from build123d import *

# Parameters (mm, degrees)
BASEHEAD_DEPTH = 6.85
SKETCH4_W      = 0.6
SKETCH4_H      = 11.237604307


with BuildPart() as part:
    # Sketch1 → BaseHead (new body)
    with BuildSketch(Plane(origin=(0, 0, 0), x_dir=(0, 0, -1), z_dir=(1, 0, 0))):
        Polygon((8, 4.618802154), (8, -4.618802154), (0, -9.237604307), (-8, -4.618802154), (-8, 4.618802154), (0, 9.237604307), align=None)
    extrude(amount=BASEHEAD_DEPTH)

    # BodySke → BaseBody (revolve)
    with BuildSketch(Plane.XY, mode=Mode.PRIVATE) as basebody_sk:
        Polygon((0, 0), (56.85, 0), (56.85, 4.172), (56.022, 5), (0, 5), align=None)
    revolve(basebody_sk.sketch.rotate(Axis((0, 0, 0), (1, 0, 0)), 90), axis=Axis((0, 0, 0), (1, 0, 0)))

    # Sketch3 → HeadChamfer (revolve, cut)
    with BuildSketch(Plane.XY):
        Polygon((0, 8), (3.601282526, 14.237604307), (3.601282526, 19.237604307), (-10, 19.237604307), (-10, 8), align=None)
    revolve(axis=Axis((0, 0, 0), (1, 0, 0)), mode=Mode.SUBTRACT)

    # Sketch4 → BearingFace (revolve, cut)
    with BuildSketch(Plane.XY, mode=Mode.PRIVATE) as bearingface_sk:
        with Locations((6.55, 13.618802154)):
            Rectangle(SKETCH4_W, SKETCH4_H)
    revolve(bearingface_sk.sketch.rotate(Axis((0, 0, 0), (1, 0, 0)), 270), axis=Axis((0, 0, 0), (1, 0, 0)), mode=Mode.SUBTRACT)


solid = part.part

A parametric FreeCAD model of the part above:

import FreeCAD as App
import Part
import Sketcher
from FreeCAD import Vector
Q = App.Units.Quantity


def add_polygon(sketch, points):
    """Adds a closed chain of lines whose ends are joined by coincident constraints."""
    first, n = sketch.GeometryCount, len(points)
    for a, b in zip(points, points[1:] + points[:1]):
        sketch.addGeometry(Part.LineSegment(App.Vector(*a, 0), App.Vector(*b, 0)), False)
    for i in range(n):
        sketch.addConstraint(Sketcher.Constraint("Coincident", first + i, 2, first + (i + 1) % n, 1))

doc = App.newDocument("Part")
params = doc.addObject("Spreadsheet::Sheet", "Params")
for row, (alias, value) in enumerate([
    ("pad1_length", "6.85 mm"),
    ("sketch2_height", "5 mm"),
    ("sketch2_width", "56.85 mm"),
    ("revolution_angle", "360 deg"),
    ("sketch3_width", "10 mm"),
    ("sketch3_height", "5 mm"),
    ("groove_angle", "360 deg"),
    ("sketch4_width", "0.6 mm"),
    ("groove2_angle", "360 deg"),
], start=1):
    params.set(f"A{row}", alias)
    params.set(f"B{row}", "=" + value)
    params.setAlias(f"B{row}", alias)

body = doc.addObject("PartDesign::Body", "Body")

# Sketch on YZ plane
sketch1 = body.newObject("Sketcher::SketchObject", "Sketch")
sketch1.AttachmentSupport = (doc.getObject("YZ_Plane"), [""])
sketch1.MapMode = "FlatFace"
add_polygon(sketch1, [(-5, -8), (5, -8), (9, 0), (5, 8), (-5, 8), (-9, 0)])  # lines 0-5
sketch1.addConstraint([
    Sketcher.Constraint("Horizontal", 0),
    Sketcher.Constraint("Horizontal", 3),
    Sketcher.Constraint("Symmetric", 0, 2, 3, 2, -1, 1),
    Sketcher.Constraint("Symmetric", 1, 2, 4, 2, -1, 1),
    Sketcher.Constraint("PointOnObject", 1, 2, -1),
    Sketcher.Constraint("Parallel", 2, 5),
    Sketcher.Constraint("Vertical", 0, 2, 2, 2),
    Sketcher.Constraint("Angle", 1, Q("60 deg")),
    Sketcher.Constraint("DistanceY", 0, 2, -1, 1, 8.0),
    Sketcher.Constraint("DistanceX", 0, 1, 0, 2, 9.237604),
])
pad1 = body.newObject("PartDesign::Pad", "Pad")
pad1.Profile = sketch1
pad1.setExpression("Length", "Params.pad1_length")

# Sketch on XY plane
sketch2 = body.newObject("Sketcher::SketchObject", "Sketch001")
sketch2.AttachmentSupport = (doc.getObject("XY_Plane"), [""])
sketch2.MapMode = "FlatFace"
add_polygon(sketch2, [(0, 0), (56.9, 0), (56.9, 4.2), (56, 5), (0, 5)])  # lines 0-4
sketch2.addConstraint([
    Sketcher.Constraint("Horizontal", 0),
    Sketcher.Constraint("Vertical", 1),
    Sketcher.Constraint("Horizontal", 3),
    Sketcher.Constraint("Vertical", 4),
    Sketcher.Constraint("Coincident", 4, 2, -1, 1),
    Sketcher.Constraint("DistanceY", 4, 2, 4, 1, 5.0),
    Sketcher.Constraint("Angle", 2, Q("135 deg")),
    Sketcher.Constraint("DistanceX", 0, 1, 0, 2, 56.85),
    Sketcher.Constraint("DistanceX", 3, 2, 3, 1, 56.022),
])
sketch2.setExpression("Constraints[10]", "Params.sketch2_height")
sketch2.setExpression("Constraints[12]", "Params.sketch2_width")
revolution = body.newObject("PartDesign::Revolution", "Revolution")
revolution.Profile = sketch2
revolution.ReferenceAxis = (sketch2, ["H_Axis"])
revolution.setExpression("Angle", "Params.revolution_angle")

# Sketch on XY plane
sketch3 = body.newObject("Sketcher::SketchObject", "Sketch002")
sketch3.AttachmentSupport = (doc.getObject("XY_Plane"), [""])
sketch3.MapMode = "FlatFace"
add_polygon(sketch3, [(0, 8), (4, 14), (4, 19), (-10, 19), (-10, 8)])  # lines 0-4
sketch3.addConstraint([
    Sketcher.Constraint("Vertical", 1),
    Sketcher.Constraint("Horizontal", 2),
    Sketcher.Constraint("Vertical", 3),
    Sketcher.Constraint("Horizontal", 4),
    Sketcher.Constraint("PointOnObject", 4, 2, -2),
    Sketcher.Constraint("DistanceX", 4, 1, 4, 2, 10.0),
    Sketcher.Constraint("DistanceY", 1, 1, 1, 2, 5.0),
    Sketcher.Constraint("Angle", 0, Q("60 deg")),
    Sketcher.Constraint("DistanceY", -1, 1, 3, 2, 8.0),
    Sketcher.Constraint("DistanceX", 2, 2, 2, 1, 13.601283),
])
sketch3.setExpression("Constraints[10]", "Params.sketch3_width")
sketch3.setExpression("Constraints[11]", "Params.sketch3_height")
groove = body.newObject("PartDesign::Groove", "Groove")
groove.Profile = sketch3
groove.ReferenceAxis = (sketch3, ["H_Axis"])
groove.setExpression("Angle", "Params.groove_angle")

# Sketch on XY plane
sketch4 = body.newObject("Sketcher::SketchObject", "Sketch003")
sketch4.AttachmentSupport = (doc.getObject("XY_Plane"), [""])
sketch4.MapMode = "FlatFace"
add_polygon(sketch4, [(6.2, 19.2), (6.2, 8), (6.8, 8), (6.8, 19.2)])  # lines 0-3
sketch4.addConstraint([
    Sketcher.Constraint("Vertical", 0),
    Sketcher.Constraint("Horizontal", 1),
    Sketcher.Constraint("Vertical", 2),
    Sketcher.Constraint("Horizontal", 3),
    Sketcher.Constraint("DistanceX", 1, 1, 1, 2, 0.6),
    Sketcher.Constraint("DistanceY", -1, 1, 0, 2, 8.0),
    Sketcher.Constraint("DistanceX", -1, 1, 0, 2, 6.25),
    Sketcher.Constraint("DistanceY", 0, 2, 0, 1, 11.237604),
])
sketch4.setExpression("Constraints[8]", "Params.sketch4_width")
groove2 = body.newObject("PartDesign::Groove", "Groove001")
groove2.Profile = sketch4
groove2.ReferenceAxis = (sketch4, ["H_Axis"])
groove2.setExpression("Angle", "Params.groove2_angle")

doc.recompute()
